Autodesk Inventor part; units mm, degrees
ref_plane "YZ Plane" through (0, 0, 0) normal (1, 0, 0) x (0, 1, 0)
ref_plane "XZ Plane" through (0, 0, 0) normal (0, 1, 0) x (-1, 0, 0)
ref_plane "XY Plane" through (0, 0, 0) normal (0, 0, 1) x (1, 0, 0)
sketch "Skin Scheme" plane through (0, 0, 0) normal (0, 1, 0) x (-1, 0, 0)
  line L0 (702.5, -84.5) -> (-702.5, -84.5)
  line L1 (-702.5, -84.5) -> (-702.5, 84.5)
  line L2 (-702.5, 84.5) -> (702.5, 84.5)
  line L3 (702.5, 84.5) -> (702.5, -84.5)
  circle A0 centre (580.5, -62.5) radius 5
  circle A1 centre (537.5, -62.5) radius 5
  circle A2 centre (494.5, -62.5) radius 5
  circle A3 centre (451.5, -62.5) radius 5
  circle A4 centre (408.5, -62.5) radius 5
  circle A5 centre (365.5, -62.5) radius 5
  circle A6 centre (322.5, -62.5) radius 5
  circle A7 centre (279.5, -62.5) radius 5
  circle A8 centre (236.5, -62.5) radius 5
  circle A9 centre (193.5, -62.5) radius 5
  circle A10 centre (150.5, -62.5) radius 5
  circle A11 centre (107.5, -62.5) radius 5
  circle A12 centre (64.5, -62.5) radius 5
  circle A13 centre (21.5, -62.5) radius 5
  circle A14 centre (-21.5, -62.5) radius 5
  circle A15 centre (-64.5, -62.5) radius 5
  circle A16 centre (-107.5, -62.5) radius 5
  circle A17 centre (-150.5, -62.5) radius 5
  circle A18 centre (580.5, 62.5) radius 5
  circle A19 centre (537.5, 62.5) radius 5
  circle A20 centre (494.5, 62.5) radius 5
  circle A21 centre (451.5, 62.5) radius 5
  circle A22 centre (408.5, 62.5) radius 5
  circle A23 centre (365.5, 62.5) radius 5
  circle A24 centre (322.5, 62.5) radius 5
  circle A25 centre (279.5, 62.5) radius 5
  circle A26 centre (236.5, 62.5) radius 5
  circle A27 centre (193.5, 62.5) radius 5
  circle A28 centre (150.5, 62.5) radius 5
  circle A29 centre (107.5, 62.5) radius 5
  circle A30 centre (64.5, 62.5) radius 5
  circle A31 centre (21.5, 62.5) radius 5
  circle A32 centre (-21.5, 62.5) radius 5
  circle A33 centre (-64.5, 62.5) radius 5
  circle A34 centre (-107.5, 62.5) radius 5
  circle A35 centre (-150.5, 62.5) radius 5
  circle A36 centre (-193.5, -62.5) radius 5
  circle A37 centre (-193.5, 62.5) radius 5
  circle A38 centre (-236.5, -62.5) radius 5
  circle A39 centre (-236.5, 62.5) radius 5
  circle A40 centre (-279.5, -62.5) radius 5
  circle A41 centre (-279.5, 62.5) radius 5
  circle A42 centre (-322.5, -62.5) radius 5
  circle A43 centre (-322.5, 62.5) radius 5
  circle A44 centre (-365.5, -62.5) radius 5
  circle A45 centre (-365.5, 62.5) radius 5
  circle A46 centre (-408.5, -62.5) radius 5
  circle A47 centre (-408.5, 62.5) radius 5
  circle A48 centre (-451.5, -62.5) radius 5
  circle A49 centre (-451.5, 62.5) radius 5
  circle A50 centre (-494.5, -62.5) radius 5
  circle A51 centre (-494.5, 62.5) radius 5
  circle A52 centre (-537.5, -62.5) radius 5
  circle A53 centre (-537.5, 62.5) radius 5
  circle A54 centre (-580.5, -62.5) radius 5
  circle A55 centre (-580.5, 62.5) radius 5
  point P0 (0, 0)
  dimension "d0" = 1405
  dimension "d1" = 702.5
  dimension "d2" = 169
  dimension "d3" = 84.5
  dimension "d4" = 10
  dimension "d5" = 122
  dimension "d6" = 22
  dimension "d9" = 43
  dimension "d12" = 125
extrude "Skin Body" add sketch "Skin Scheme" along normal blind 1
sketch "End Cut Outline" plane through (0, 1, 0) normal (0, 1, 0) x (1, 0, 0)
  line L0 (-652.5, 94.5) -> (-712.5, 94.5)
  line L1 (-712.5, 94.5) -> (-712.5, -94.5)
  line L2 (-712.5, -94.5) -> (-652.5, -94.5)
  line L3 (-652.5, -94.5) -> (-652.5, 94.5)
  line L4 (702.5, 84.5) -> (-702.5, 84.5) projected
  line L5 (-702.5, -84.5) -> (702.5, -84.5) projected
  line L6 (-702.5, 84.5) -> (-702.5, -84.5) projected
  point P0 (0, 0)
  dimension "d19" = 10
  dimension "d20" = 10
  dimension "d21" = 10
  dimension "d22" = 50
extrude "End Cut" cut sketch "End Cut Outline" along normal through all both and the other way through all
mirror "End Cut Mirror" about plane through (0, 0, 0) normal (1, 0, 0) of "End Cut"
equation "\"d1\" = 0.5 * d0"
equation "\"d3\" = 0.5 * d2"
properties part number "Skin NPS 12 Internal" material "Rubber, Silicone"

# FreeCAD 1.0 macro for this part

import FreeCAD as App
import Part
import Sketcher
from FreeCAD import Vector

doc = App.newDocument("Part")
body = doc.addObject("PartDesign::Body", "Body")

# Sketch on XZ plane
sketch1 = body.newObject("Sketcher::SketchObject", "Sketch")
sketch1.AttachmentSupport = (doc.getObject("XZ_Plane"), [""])
sketch1.MapMode = "FlatFace"
sketch1.addGeometry(Part.LineSegment(Vector(702, -84, 0), Vector(-702, -84, 0)), False)
sketch1.addGeometry(Part.LineSegment(Vector(-702, -84, 0), Vector(-702, 84, 0)), False)
sketch1.addGeometry(Part.LineSegment(Vector(-702, 84, 0), Vector(702, 84, 0)), False)
sketch1.addGeometry(Part.LineSegment(Vector(702, 84, 0), Vector(702, -84, 0)), False)
sketch1.addGeometry(Part.Circle(Vector(580, -62, 0), Vector(0, 0, 1), 5), False)
sketch1.addGeometry(Part.Circle(Vector(538, -62, 0), Vector(0, 0, 1), 5), False)
sketch1.addGeometry(Part.Circle(Vector(494, -62, 0), Vector(0, 0, 1), 5), False)
sketch1.addGeometry(Part.Circle(Vector(452, -62, 0), Vector(0, 0, 1), 5), False)
sketch1.addGeometry(Part.Circle(Vector(408, -62, 0), Vector(0, 0, 1), 5), False)
sketch1.addGeometry(Part.Circle(Vector(366, -62, 0), Vector(0, 0, 1), 5), False)
sketch1.addGeometry(Part.Circle(Vector(322, -62, 0), Vector(0, 0, 1), 5), False)
sketch1.addGeometry(Part.Circle(Vector(280, -62, 0), Vector(0, 0, 1), 5), False)
sketch1.addGeometry(Part.Circle(Vector(236, -62, 0), Vector(0, 0, 1), 5), False)
sketch1.addGeometry(Part.Circle(Vector(194, -62, 0), Vector(0, 0, 1), 5), False)
sketch1.addGeometry(Part.Circle(Vector(150, -62, 0), Vector(0, 0, 1), 5), False)
sketch1.addGeometry(Part.Circle(Vector(108, -62, 0), Vector(0, 0, 1), 5), False)
sketch1.addGeometry(Part.Circle(Vector(64, -62, 0), Vector(0, 0, 1), 5), False)
sketch1.addGeometry(Part.Circle(Vector(22, -62, 0), Vector(0, 0, 1), 5), False)
sketch1.addGeometry(Part.Circle(Vector(-22, -62, 0), Vector(0, 0, 1), 5), False)
sketch1.addGeometry(Part.Circle(Vector(-64, -62, 0), Vector(0, 0, 1), 5), False)
sketch1.addGeometry(Part.Circle(Vector(-108, -62, 0), Vector(0, 0, 1), 5), False)
sketch1.addGeometry(Part.Circle(Vector(-150, -62, 0), Vector(0, 0, 1), 5), False)
sketch1.addGeometry(Part.Circle(Vector(-194, -62, 0), Vector(0, 0, 1), 5), False)
sketch1.addGeometry(Part.Circle(Vector(-236, -62, 0), Vector(0, 0, 1), 5), False)
sketch1.addGeometry(Part.Circle(Vector(-280, -62, 0), Vector(0, 0, 1), 5), False)
sketch1.addGeometry(Part.Circle(Vector(-322, -62, 0), Vector(0, 0, 1), 5), False)
sketch1.addGeometry(Part.Circle(Vector(-366, -62, 0), Vector(0, 0, 1), 5), False)
sketch1.addGeometry(Part.Circle(Vector(-408, -62, 0), Vector(0, 0, 1), 5), False)
sketch1.addGeometry(Part.Circle(Vector(-452, -62, 0), Vector(0, 0, 1), 5), False)
sketch1.addGeometry(Part.Circle(Vector(-494, -62, 0), Vector(0, 0, 1), 5), False)
sketch1.addGeometry(Part.Circle(Vector(-538, -62, 0), Vector(0, 0, 1), 5), False)
sketch1.addGeometry(Part.Circle(Vector(-580, -62, 0), Vector(0, 0, 1), 5), False)
sketch1.addGeometry(Part.Circle(Vector(580, 62, 0), Vector(0, 0, 1), 5), False)
sketch1.addGeometry(Part.Circle(Vector(538, 62, 0), Vector(0, 0, 1), 5), False)
sketch1.addGeometry(Part.Circle(Vector(494, 62, 0), Vector(0, 0, 1), 5), False)
sketch1.addGeometry(Part.Circle(Vector(452, 62, 0), Vector(0, 0, 1), 5), False)
sketch1.addGeometry(Part.Circle(Vector(408, 62, 0), Vector(0, 0, 1), 5), False)
sketch1.addGeometry(Part.Circle(Vector(366, 62, 0), Vector(0, 0, 1), 5), False)
sketch1.addGeometry(Part.Circle(Vector(322, 62, 0), Vector(0, 0, 1), 5), False)
sketch1.addGeometry(Part.Circle(Vector(280, 62, 0), Vector(0, 0, 1), 5), False)
sketch1.addGeometry(Part.Circle(Vector(236, 62, 0), Vector(0, 0, 1), 5), False)
sketch1.addGeometry(Part.Circle(Vector(194, 62, 0), Vector(0, 0, 1), 5), False)
sketch1.addGeometry(Part.Circle(Vector(150, 62, 0), Vector(0, 0, 1), 5), False)
sketch1.addGeometry(Part.Circle(Vector(108, 62, 0), Vector(0, 0, 1), 5), False)
sketch1.addGeometry(Part.Circle(Vector(64, 62, 0), Vector(0, 0, 1), 5), False)
sketch1.addGeometry(Part.Circle(Vector(22, 62, 0), Vector(0, 0, 1), 5), False)
sketch1.addGeometry(Part.Circle(Vector(-22, 62, 0), Vector(0, 0, 1), 5), False)
sketch1.addGeometry(Part.Circle(Vector(-64, 62, 0), Vector(0, 0, 1), 5), False)
sketch1.addGeometry(Part.Circle(Vector(-108, 62, 0), Vector(0, 0, 1), 5), False)
sketch1.addGeometry(Part.Circle(Vector(-150, 62, 0), Vector(0, 0, 1), 5), False)
sketch1.addGeometry(Part.Circle(Vector(-194, 62, 0), Vector(0, 0, 1), 5), False)
sketch1.addGeometry(Part.Circle(Vector(-236, 62, 0), Vector(0, 0, 1), 5), False)
sketch1.addGeometry(Part.Circle(Vector(-280, 62, 0), Vector(0, 0, 1), 5), False)
sketch1.addGeometry(Part.Circle(Vector(-322, 62, 0), Vector(0, 0, 1), 5), False)
sketch1.addGeometry(Part.Circle(Vector(-366, 62, 0), Vector(0, 0, 1), 5), False)
sketch1.addGeometry(Part.Circle(Vector(-408, 62, 0), Vector(0, 0, 1), 5), False)
sketch1.addGeometry(Part.Circle(Vector(-452, 62, 0), Vector(0, 0, 1), 5), False)
sketch1.addGeometry(Part.Circle(Vector(-494, 62, 0), Vector(0, 0, 1), 5), False)
sketch1.addGeometry(Part.Circle(Vector(-538, 62, 0), Vector(0, 0, 1), 5), False)
sketch1.addGeometry(Part.Circle(Vector(-580, 62, 0), Vector(0, 0, 1), 5), False)
sketch1.addConstraint(Sketcher.Constraint("Coincident", 0, 2, 1, 1))
sketch1.addConstraint(Sketcher.Constraint("Coincident", 1, 2, 2, 1))
sketch1.addConstraint(Sketcher.Constraint("Coincident", 2, 2, 3, 1))
sketch1.addConstraint(Sketcher.Constraint("Coincident", 3, 2, 0, 1))
sketch1.addConstraint(Sketcher.Constraint("Horizontal", 0))
sketch1.addConstraint(Sketcher.Constraint("Vertical", 1))
sketch1.addConstraint(Sketcher.Constraint("Horizontal", 2))
sketch1.addConstraint(Sketcher.Constraint("Vertical", 3))
sketch1.addConstraint(Sketcher.Constraint("Equal", 4, 5))
sketch1.addConstraint(Sketcher.Constraint("Equal", 5, 6))
sketch1.addConstraint(Sketcher.Constraint("Equal", 6, 7))
sketch1.addConstraint(Sketcher.Constraint("Equal", 7, 8))
sketch1.addConstraint(Sketcher.Constraint("Equal", 8, 9))
sketch1.addConstraint(Sketcher.Constraint("Equal", 9, 10))
sketch1.addConstraint(Sketcher.Constraint("Equal", 10, 11))
sketch1.addConstraint(Sketcher.Constraint("Equal", 11, 12))
sketch1.addConstraint(Sketcher.Constraint("Equal", 12, 13))
sketch1.addConstraint(Sketcher.Constraint("Equal", 13, 14))
sketch1.addConstraint(Sketcher.Constraint("Equal", 14, 15))
sketch1.addConstraint(Sketcher.Constraint("Equal", 15, 16))
sketch1.addConstraint(Sketcher.Constraint("Equal", 16, 17))
sketch1.addConstraint(Sketcher.Constraint("Equal", 17, 18))
sketch1.addConstraint(Sketcher.Constraint("Equal", 18, 19))
sketch1.addConstraint(Sketcher.Constraint("Equal", 19, 20))
sketch1.addConstraint(Sketcher.Constraint("Equal", 20, 21))
sketch1.addConstraint(Sketcher.Constraint("Equal", 21, 22))
sketch1.addConstraint(Sketcher.Constraint("Equal", 22, 23))
sketch1.addConstraint(Sketcher.Constraint("Equal", 23, 24))
sketch1.addConstraint(Sketcher.Constraint("Equal", 24, 25))
sketch1.addConstraint(Sketcher.Constraint("Equal", 25, 26))
sketch1.addConstraint(Sketcher.Constraint("Equal", 26, 27))
sketch1.addConstraint(Sketcher.Constraint("Equal", 27, 28))
sketch1.addConstraint(Sketcher.Constraint("Equal", 28, 29))
sketch1.addConstraint(Sketcher.Constraint("Equal", 29, 30))
sketch1.addConstraint(Sketcher.Constraint("Equal", 30, 31))
sketch1.addConstraint(Sketcher.Constraint("Equal", 31, 32))
sketch1.addConstraint(Sketcher.Constraint("Equal", 32, 33))
sketch1.addConstraint(Sketcher.Constraint("Equal", 33, 34))
sketch1.addConstraint(Sketcher.Constraint("Equal", 34, 35))
sketch1.addConstraint(Sketcher.Constraint("Equal", 35, 36))
sketch1.addConstraint(Sketcher.Constraint("Equal", 36, 37))
sketch1.addConstraint(Sketcher.Constraint("Equal", 37, 38))
sketch1.addConstraint(Sketcher.Constraint("Equal", 38, 39))
sketch1.addConstraint(Sketcher.Constraint("Equal", 39, 40))
sketch1.addConstraint(Sketcher.Constraint("Equal", 40, 41))
sketch1.addConstraint(Sketcher.Constraint("Equal", 41, 42))
sketch1.addConstraint(Sketcher.Constraint("Equal", 42, 43))
sketch1.addConstraint(Sketcher.Constraint("Equal", 43, 44))
sketch1.addConstraint(Sketcher.Constraint("Equal", 44, 45))
sketch1.addConstraint(Sketcher.Constraint("Equal", 45, 46))
sketch1.addConstraint(Sketcher.Constraint("Equal", 46, 47))
sketch1.addConstraint(Sketcher.Constraint("Equal", 47, 48))
sketch1.addConstraint(Sketcher.Constraint("Equal", 48, 49))
sketch1.addConstraint(Sketcher.Constraint("Equal", 49, 50))
sketch1.addConstraint(Sketcher.Constraint("Equal", 50, 51))
sketch1.addConstraint(Sketcher.Constraint("Equal", 51, 52))
sketch1.addConstraint(Sketcher.Constraint("Equal", 52, 53))
sketch1.addConstraint(Sketcher.Constraint("Equal", 53, 54))
sketch1.addConstraint(Sketcher.Constraint("Equal", 54, 55))
sketch1.addConstraint(Sketcher.Constraint("Equal", 55, 56))
sketch1.addConstraint(Sketcher.Constraint("Equal", 56, 57))
sketch1.addConstraint(Sketcher.Constraint("Equal", 57, 58))
sketch1.addConstraint(Sketcher.Constraint("Equal", 58, 59))
sketch1.addConstraint(Sketcher.Constraint("Symmetric", 31, 3, 32, 3, -1, 1))
sketch1.addConstraint(Sketcher.Constraint("Symmetric", 30, 3, 33, 3, -1, 1))
sketch1.addConstraint(Sketcher.Constraint("Symmetric", 29, 3, 34, 3, -1, 1))
sketch1.addConstraint(Sketcher.Constraint("Symmetric", 28, 3, 35, 3, -1, 1))
sketch1.addConstraint(Sketcher.Constraint("Symmetric", 27, 3, 36, 3, -1, 1))
sketch1.addConstraint(Sketcher.Constraint("Symmetric", 26, 3, 37, 3, -1, 1))
sketch1.addConstraint(Sketcher.Constraint("Symmetric", 25, 3, 38, 3, -1, 1))
sketch1.addConstraint(Sketcher.Constraint("Symmetric", 24, 3, 39, 3, -1, 1))
sketch1.addConstraint(Sketcher.Constraint("Symmetric", 23, 3, 40, 3, -1, 1))
sketch1.addConstraint(Sketcher.Constraint("Symmetric", 22, 3, 41, 3, -1, 1))
sketch1.addConstraint(Sketcher.Constraint("Symmetric", 21, 3, 42, 3, -1, 1))
sketch1.addConstraint(Sketcher.Constraint("Symmetric", 20, 3, 43, 3, -1, 1))
sketch1.addConstraint(Sketcher.Constraint("Symmetric", 19, 3, 44, 3, -1, 1))
sketch1.addConstraint(Sketcher.Constraint("Symmetric", 18, 3, 45, 3, -1, 1))
sketch1.addConstraint(Sketcher.Constraint("Symmetric", 17, 3, 46, 3, -1, 1))
sketch1.addConstraint(Sketcher.Constraint("Symmetric", 16, 3, 47, 3, -1, 1))
sketch1.addConstraint(Sketcher.Constraint("Symmetric", 15, 3, 48, 3, -1, 1))
sketch1.addConstraint(Sketcher.Constraint("Symmetric", 14, 3, 49, 3, -1, 1))
sketch1.addConstraint(Sketcher.Constraint("Symmetric", 13, 3, 50, 3, -1, 1))
sketch1.addConstraint(Sketcher.Constraint("Symmetric", 12, 3, 51, 3, -1, 1))
sketch1.addConstraint(Sketcher.Constraint("Symmetric", 11, 3, 52, 3, -1, 1))
sketch1.addConstraint(Sketcher.Constraint("Symmetric", 10, 3, 53, 3, -1, 1))
sketch1.addConstraint(Sketcher.Constraint("Symmetric", 9, 3, 54, 3, -1, 1))
sketch1.addConstraint(Sketcher.Constraint("Symmetric", 8, 3, 55, 3, -1, 1))
sketch1.addConstraint(Sketcher.Constraint("Symmetric", 7, 3, 56, 3, -1, 1))
sketch1.addConstraint(Sketcher.Constraint("Symmetric", 6, 3, 57, 3, -1, 1))
sketch1.addConstraint(Sketcher.Constraint("Symmetric", 5, 3, 58, 3, -1, 1))
sketch1.addConstraint(Sketcher.Constraint("Symmetric", 4, 3, 59, 3, -1, 1))
sketch1.addConstraint(Sketcher.Constraint("Symmetric", 0, 2, 2, 2, -1, 1))
sketch1.addConstraint(Sketcher.Constraint("Symmetric", 17, 3, 18, 3, -2))
sketch1.addConstraint(Sketcher.Constraint("Symmetric", 16, 3, 19, 3, -2))
sketch1.addConstraint(Sketcher.Constraint("Symmetric", 15, 3, 20, 3, -2))
sketch1.addConstraint(Sketcher.Constraint("Symmetric", 14, 3, 21, 3, -2))
sketch1.addConstraint(Sketcher.Constraint("Symmetric", 13, 3, 22, 3, -2))
sketch1.addConstraint(Sketcher.Constraint("Symmetric", 12, 3, 23, 3, -2))
sketch1.addConstraint(Sketcher.Constraint("Symmetric", 11, 3, 24, 3, -2))
sketch1.addConstraint(Sketcher.Constraint("Symmetric", 10, 3, 25, 3, -2))
sketch1.addConstraint(Sketcher.Constraint("Symmetric", 9, 3, 26, 3, -2))
sketch1.addConstraint(Sketcher.Constraint("Symmetric", 8, 3, 27, 3, -2))
sketch1.addConstraint(Sketcher.Constraint("Symmetric", 7, 3, 28, 3, -2))
sketch1.addConstraint(Sketcher.Constraint("Symmetric", 6, 3, 29, 3, -2))
sketch1.addConstraint(Sketcher.Constraint("Symmetric", 5, 3, 30, 3, -2))
sketch1.addConstraint(Sketcher.Constraint("Symmetric", 4, 3, 31, 3, -2))
sketch1.addConstraint(Sketcher.Constraint("Horizontal", 4, 3, 5, 3))
sketch1.addConstraint(Sketcher.Constraint("Horizontal", 5, 3, 6, 3))
sketch1.addConstraint(Sketcher.Constraint("Horizontal", 6, 3, 7, 3))
sketch1.addConstraint(Sketcher.Constraint("Horizontal", 7, 3, 8, 3))
sketch1.addConstraint(Sketcher.Constraint("Horizontal", 8, 3, 9, 3))
sketch1.addConstraint(Sketcher.Constraint("Horizontal", 9, 3, 10, 3))
sketch1.addConstraint(Sketcher.Constraint("Horizontal", 10, 3, 11, 3))
sketch1.addConstraint(Sketcher.Constraint("Horizontal", 11, 3, 12, 3))
sketch1.addConstraint(Sketcher.Constraint("Horizontal", 12, 3, 13, 3))
sketch1.addConstraint(Sketcher.Constraint("Horizontal", 13, 3, 14, 3))
sketch1.addConstraint(Sketcher.Constraint("Horizontal", 14, 3, 15, 3))
sketch1.addConstraint(Sketcher.Constraint("Horizontal", 15, 3, 16, 3))
sketch1.addConstraint(Sketcher.Constraint("Horizontal", 16, 3, 17, 3))
sketch1.addConstraint(Sketcher.Constraint("Diameter", 4, 10.0))
sketch1.addConstraint(Sketcher.Constraint("DistanceX", 0, 2, 0, 1, 1405.0))
sketch1.addConstraint(Sketcher.Constraint("DistanceY", 1, 1, 1, 2, 169.0))
sketch1.addConstraint(Sketcher.Constraint("DistanceX", 5, 3, 4, 3, 43.0))
sketch1.addConstraint(Sketcher.Constraint("DistanceX", 6, 3, 5, 3, 43.0))
sketch1.addConstraint(Sketcher.Constraint("DistanceX", 7, 3, 6, 3, 43.0))
sketch1.addConstraint(Sketcher.Constraint("DistanceX", 8, 3, 7, 3, 43.0))
sketch1.addConstraint(Sketcher.Constraint("DistanceX", 9, 3, 8, 3, 43.0))
sketch1.addConstraint(Sketcher.Constraint("DistanceX", 10, 3, 9, 3, 43.0))
sketch1.addConstraint(Sketcher.Constraint("DistanceX", 11, 3, 10, 3, 43.0))
sketch1.addConstraint(Sketcher.Constraint("DistanceX", 12, 3, 11, 3, 43.0))
sketch1.addConstraint(Sketcher.Constraint("DistanceX", 13, 3, 12, 3, 43.0))
sketch1.addConstraint(Sketcher.Constraint("DistanceX", 14, 3, 13, 3, 43.0))
sketch1.addConstraint(Sketcher.Constraint("DistanceX", 15, 3, 14, 3, 43.0))
sketch1.addConstraint(Sketcher.Constraint("DistanceX", 16, 3, 15, 3, 43.0))
sketch1.addConstraint(Sketcher.Constraint("DistanceX", 17, 3, 16, 3, 43.0))
sketch1.addConstraint(Sketcher.Constraint("DistanceX", 18, 3, 17, 3, 43.0))
sketch1.addConstraint(Sketcher.Constraint("DistanceY", 4, 3, 32, 3, 125.0))
pad1 = body.newObject("PartDesign::Pad", "Pad")
pad1.Profile = sketch1
pad1.Length = 1
pad1.Reversed = True

# Sketch on XZ plane
sketch2 = body.newObject("Sketcher::SketchObject", "Sketch001")
sketch2.AttachmentSupport = (doc.getObject("XZ_Plane"), [""])
sketch2.MapMode = "FlatFace"
sketch2.AttachmentOffset = App.Placement(Vector(0, 0, -1), App.Rotation())
sketch2.addGeometry(Part.LineSegment(Vector(-652, -94, 0), Vector(-712, -94, 0)), False)
sketch2.addGeometry(Part.LineSegment(Vector(-712, -94, 0), Vector(-712, 94, 0)), False)
sketch2.addGeometry(Part.LineSegment(Vector(-712, 94, 0), Vector(-652, 94, 0)), False)
sketch2.addGeometry(Part.LineSegment(Vector(-652, 94, 0), Vector(-652, -94, 0)), False)
sketch2.addConstraint(Sketcher.Constraint("Coincident", 0, 2, 1, 1))
sketch2.addConstraint(Sketcher.Constraint("Coincident", 1, 2, 2, 1))
sketch2.addConstraint(Sketcher.Constraint("Coincident", 2, 2, 3, 1))
sketch2.addConstraint(Sketcher.Constraint("Coincident", 3, 2, 0, 1))
sketch2.addConstraint(Sketcher.Constraint("Horizontal", 0))
sketch2.addConstraint(Sketcher.Constraint("Vertical", 1))
sketch2.addConstraint(Sketcher.Constraint("Horizontal", 2))
sketch2.addConstraint(Sketcher.Constraint("Vertical", 3))
sketch2.addConstraint(Sketcher.Constraint("DistanceX", 0, 2, 0, 1, 60.0))
sketch2.addConstraint(Sketcher.Constraint("DistanceY", 1, 1, 1, 2, 189.0))
sketch2.addConstraint(Sketcher.Constraint("DistanceX", 0, 2, -1, 1, 712.5))
sketch2.addConstraint(Sketcher.Constraint("DistanceY", 0, 2, -1, 1, 94.5))
pocket1 = body.newObject("PartDesign::Pocket", "Pocket")
pocket1.Profile = sketch2
pocket1.Type = "ThroughAll"
pocket1.Midplane = True
doc.recompute()

mirrored = body.newObject("PartDesign::Mirrored", "Mirrored")
mirrored.Originals = [pocket1]
mirrored.MirrorPlane = (doc.getObject("YZ_Plane"), [""])
body.Tip = mirrored

doc.recompute()
